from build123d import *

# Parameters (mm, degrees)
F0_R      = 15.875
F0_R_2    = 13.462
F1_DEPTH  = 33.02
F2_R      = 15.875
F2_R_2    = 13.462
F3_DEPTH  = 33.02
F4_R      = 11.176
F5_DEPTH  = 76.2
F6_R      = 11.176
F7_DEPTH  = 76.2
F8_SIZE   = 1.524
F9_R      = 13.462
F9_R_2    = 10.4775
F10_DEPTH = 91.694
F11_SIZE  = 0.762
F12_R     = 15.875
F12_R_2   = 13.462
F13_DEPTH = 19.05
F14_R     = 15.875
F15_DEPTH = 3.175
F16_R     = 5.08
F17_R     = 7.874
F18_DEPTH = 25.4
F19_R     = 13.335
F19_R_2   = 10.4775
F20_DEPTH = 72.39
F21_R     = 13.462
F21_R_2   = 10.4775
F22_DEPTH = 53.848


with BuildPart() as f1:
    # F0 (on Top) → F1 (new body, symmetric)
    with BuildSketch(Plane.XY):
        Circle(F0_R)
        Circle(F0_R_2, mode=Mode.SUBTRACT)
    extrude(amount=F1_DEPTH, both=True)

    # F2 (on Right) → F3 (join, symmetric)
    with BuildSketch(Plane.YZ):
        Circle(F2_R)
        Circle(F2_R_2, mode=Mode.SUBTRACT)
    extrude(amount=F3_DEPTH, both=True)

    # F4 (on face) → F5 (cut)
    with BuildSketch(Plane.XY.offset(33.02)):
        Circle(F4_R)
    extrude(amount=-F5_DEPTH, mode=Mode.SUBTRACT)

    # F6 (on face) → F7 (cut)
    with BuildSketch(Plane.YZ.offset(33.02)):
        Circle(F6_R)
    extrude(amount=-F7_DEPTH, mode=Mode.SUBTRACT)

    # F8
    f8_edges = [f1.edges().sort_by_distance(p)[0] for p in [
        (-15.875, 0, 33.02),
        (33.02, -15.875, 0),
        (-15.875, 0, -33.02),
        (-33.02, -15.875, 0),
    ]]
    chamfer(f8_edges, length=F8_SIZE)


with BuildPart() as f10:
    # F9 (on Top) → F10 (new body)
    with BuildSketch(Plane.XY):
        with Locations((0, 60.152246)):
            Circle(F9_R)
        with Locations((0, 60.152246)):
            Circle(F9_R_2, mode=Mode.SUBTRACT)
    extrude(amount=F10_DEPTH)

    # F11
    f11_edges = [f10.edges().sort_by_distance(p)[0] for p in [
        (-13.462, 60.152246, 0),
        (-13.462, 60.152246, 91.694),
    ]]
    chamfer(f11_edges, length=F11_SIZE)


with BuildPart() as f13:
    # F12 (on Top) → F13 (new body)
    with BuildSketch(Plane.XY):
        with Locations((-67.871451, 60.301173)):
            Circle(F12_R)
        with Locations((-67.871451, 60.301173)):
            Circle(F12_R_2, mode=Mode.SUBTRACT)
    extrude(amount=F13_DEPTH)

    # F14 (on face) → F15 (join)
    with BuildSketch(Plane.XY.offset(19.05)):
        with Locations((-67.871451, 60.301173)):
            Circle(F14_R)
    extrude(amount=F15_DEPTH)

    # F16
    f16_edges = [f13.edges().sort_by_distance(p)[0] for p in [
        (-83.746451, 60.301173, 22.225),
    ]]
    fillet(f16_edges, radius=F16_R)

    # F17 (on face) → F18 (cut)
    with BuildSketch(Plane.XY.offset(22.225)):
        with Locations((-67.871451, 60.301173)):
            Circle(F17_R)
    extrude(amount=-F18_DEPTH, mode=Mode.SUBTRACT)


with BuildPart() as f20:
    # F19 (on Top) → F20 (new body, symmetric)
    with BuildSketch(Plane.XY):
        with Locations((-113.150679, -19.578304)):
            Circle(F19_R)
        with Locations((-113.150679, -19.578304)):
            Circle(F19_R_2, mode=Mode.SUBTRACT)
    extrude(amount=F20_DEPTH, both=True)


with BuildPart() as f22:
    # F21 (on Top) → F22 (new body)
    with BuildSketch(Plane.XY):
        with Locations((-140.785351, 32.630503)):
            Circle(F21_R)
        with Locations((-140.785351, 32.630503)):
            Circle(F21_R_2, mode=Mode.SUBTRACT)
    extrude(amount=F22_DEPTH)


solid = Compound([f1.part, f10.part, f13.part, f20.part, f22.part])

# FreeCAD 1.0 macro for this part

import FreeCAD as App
import Part
import Sketcher

V = App.Vector
Q = App.Units.Quantity


def edges_at(feature, points):
    """Names of the edges that pass closest to the given points."""
    edges = feature.Shape.Edges
    near = lambda p: min(range(len(edges)), key=lambda i: edges[i].distToShape(Part.Vertex(*p))[0])
    return sorted({f"Edge{near(p) + 1}" for p in points})

doc = App.newDocument("Part")
body = doc.addObject("PartDesign::Body", "Body")

sketch1 = body.newObject("Sketcher::SketchObject", "Sketch")
sketch1.AttachmentSupport = (doc.getObject("XY_Plane"), [""])
sketch1.MapMode = "FlatFace"
sketch1.addGeometry(Part.Circle(V(0, 0, 0), V(0, 0, 1), 16), False)
sketch1.addGeometry(Part.Circle(V(0, 0, 0), V(0, 0, 1), 13), False)
sketch1.addConstraint(Sketcher.Constraint("Coincident", 0, 3, -1, 1))
sketch1.addConstraint(Sketcher.Constraint("Coincident", 1, 3, -1, 1))
sketch1.addConstraint(Sketcher.Constraint("Diameter", 0, Q("1.25 in")))
sketch1.addConstraint(Sketcher.Constraint("Diameter", 1, Q("1.06 in")))
pad1 = body.newObject("PartDesign::Pad", "Pad")
pad1.Profile = sketch1
pad1.Length = Q("2.6 in")
pad1.Midplane = True

sketch2 = body.newObject("Sketcher::SketchObject", "Sketch001")
sketch2.AttachmentSupport = (doc.getObject("YZ_Plane"), [""])
sketch2.MapMode = "FlatFace"
sketch2.addGeometry(Part.Circle(V(0, 0, 0), V(0, 0, 1), 16), False)
sketch2.addGeometry(Part.Circle(V(0, 0, 0), V(0, 0, 1), 13), False)
sketch2.addConstraint(Sketcher.Constraint("Coincident", 0, 3, -1, 1))
sketch2.addConstraint(Sketcher.Constraint("Coincident", 1, 3, -1, 1))
sketch2.addConstraint(Sketcher.Constraint("Diameter", 0, Q("1.25 in")))
sketch2.addConstraint(Sketcher.Constraint("Diameter", 1, Q("1.06 in")))
pad2 = body.newObject("PartDesign::Pad", "Pad001")
pad2.Profile = sketch2
pad2.Length = Q("2.6 in")
pad2.Midplane = True

sketch3 = body.newObject("Sketcher::SketchObject", "Sketch002")
sketch3.AttachmentSupport = (doc.getObject("XY_Plane"), [""])
sketch3.MapMode = "FlatFace"
sketch3.AttachmentOffset = App.Placement(V(0, 0, 1.3 * 25.4), App.Rotation())
sketch3.addGeometry(Part.Circle(V(0, 0, 0), V(0, 0, 1), 11), False)
sketch3.addConstraint(Sketcher.Constraint("Coincident", 0, 3, -1, 1))
sketch3.addConstraint(Sketcher.Constraint("Diameter", 0, Q("0.88 in")))
pocket1 = body.newObject("PartDesign::Pocket", "Pocket")
pocket1.Profile = sketch3
pocket1.Length = Q("3 in")

sketch4 = body.newObject("Sketcher::SketchObject", "Sketch003")
sketch4.AttachmentSupport = (doc.getObject("YZ_Plane"), [""])
sketch4.MapMode = "FlatFace"
sketch4.AttachmentOffset = App.Placement(V(0, 0, 1.3 * 25.4), App.Rotation())
sketch4.addGeometry(Part.Circle(V(0, 0, 0), V(0, 0, 1), 11), False)
sketch4.addConstraint(Sketcher.Constraint("Coincident", 0, 3, -1, 1))
sketch4.addConstraint(Sketcher.Constraint("Diameter", 0, Q("0.88 in")))
pocket2 = body.newObject("PartDesign::Pocket", "Pocket001")
pocket2.Profile = sketch4
pocket2.Length = Q("3 in")
doc.recompute()

chamfer = body.newObject("PartDesign::Chamfer", "Chamfer")
chamfer.Base = (pocket2, edges_at(pocket2, [
    (-15.875, 0, 33.02),
    (33.02, -15.875, 0),
    (-15.875, 0, -33.02),
    (-33.02, -15.875, 0),
]))
chamfer.Size = Q("0.06 in")
body2 = doc.addObject("PartDesign::Body", "Body001")

sketch5 = body2.newObject("Sketcher::SketchObject", "Sketch004")
sketch5.AttachmentSupport = (doc.getObject("XY_Plane001"), [""])
sketch5.MapMode = "FlatFace"
sketch5.addGeometry(Part.Circle(V(0, 60, 0), V(0, 0, 1), 13), False)
sketch5.addGeometry(Part.Circle(V(0, 60, 0), V(0, 0, 1), 10), False)
sketch5.addConstraint(Sketcher.Constraint("Coincident", 1, 3, 0, 3))
sketch5.addConstraint(Sketcher.Constraint("PointOnObject", 0, 3, -2))
sketch5.addConstraint(Sketcher.Constraint("Diameter", 0, Q("1.06 in")))
sketch5.addConstraint(Sketcher.Constraint("Diameter", 1, Q("0.825 in")))
sketch5.addConstraint(Sketcher.Constraint("DistanceY", -1, 1, 0, 3, 60.152246))
pad3 = body2.newObject("PartDesign::Pad", "Pad002")
pad3.Profile = sketch5
pad3.Length = Q("3.61 in")
doc.recompute()

chamfer2 = body2.newObject("PartDesign::Chamfer", "Chamfer001")
chamfer2.Base = (pad3, edges_at(pad3, [(-13.462, 60.152, 0), (-13.462, 60.152, 91.694)]))
chamfer2.Size = Q("0.03 in")
body3 = doc.addObject("PartDesign::Body", "Body002")

sketch6 = body3.newObject("Sketcher::SketchObject", "Sketch005")
sketch6.AttachmentSupport = (doc.getObject("XY_Plane002"), [""])
sketch6.MapMode = "FlatFace"
sketch6.addGeometry(Part.Circle(V(-68, 60, 0), V(0, 0, 1), 16), False)
sketch6.addGeometry(Part.Circle(V(-68, 60, 0), V(0, 0, 1), 13), False)
sketch6.addConstraint(Sketcher.Constraint("Coincident", 1, 3, 0, 3))
sketch6.addConstraint(Sketcher.Constraint("Diameter", 0, Q("1.25 in")))
sketch6.addConstraint(Sketcher.Constraint("Diameter", 1, Q("1.06 in")))
sketch6.addConstraint(Sketcher.Constraint("DistanceX", 0, 3, -1, 1, 67.871451))
sketch6.addConstraint(Sketcher.Constraint("DistanceY", -1, 1, 0, 3, 60.301173))
pad4 = body3.newObject("PartDesign::Pad", "Pad003")
pad4.Profile = sketch6
pad4.Length = Q("0.75 in")

sketch7 = body3.newObject("Sketcher::SketchObject", "Sketch006")
sketch7.AttachmentSupport = (doc.getObject("XY_Plane002"), [""])
sketch7.MapMode = "FlatFace"
sketch7.AttachmentOffset = App.Placement(V(0, 0, 0.75 * 25.4), App.Rotation())
sketch7.addGeometry(Part.Circle(V(-68, 60, 0), V(0, 0, 1), 16), False)
sketch7.addConstraint(Sketcher.Constraint("Diameter", 0, Q("1.25 in")))
sketch7.addConstraint(Sketcher.Constraint("DistanceX", 0, 3, -1, 1, 67.871451))
sketch7.addConstraint(Sketcher.Constraint("DistanceY", -1, 1, 0, 3, 60.301173))
pad5 = body3.newObject("PartDesign::Pad", "Pad004")
pad5.Profile = sketch7
pad5.Length = Q("0.125 in")
doc.recompute()

fillet = body3.newObject("PartDesign::Fillet", "Fillet")
fillet.Base = (pad5, edges_at(pad5, [(-83.746, 60.301, 22.225)]))
fillet.Radius = Q("0.2 in")

sketch8 = body3.newObject("Sketcher::SketchObject", "Sketch007")
sketch8.AttachmentSupport = (doc.getObject("XY_Plane002"), [""])
sketch8.MapMode = "FlatFace"
sketch8.AttachmentOffset = App.Placement(V(0, 0, 0.875 * 25.4), App.Rotation())
sketch8.addGeometry(Part.Circle(V(-68, 60, 0), V(0, 0, 1), 8), False)
sketch8.addConstraint(Sketcher.Constraint("Diameter", 0, Q("0.62 in")))
sketch8.addConstraint(Sketcher.Constraint("DistanceX", 0, 3, -1, 1, 67.871451))
sketch8.addConstraint(Sketcher.Constraint("DistanceY", -1, 1, 0, 3, 60.301173))
pocket3 = body3.newObject("PartDesign::Pocket", "Pocket002")
pocket3.Profile = sketch8
pocket3.Length = Q("1 in")
body4 = doc.addObject("PartDesign::Body", "Body003")

sketch9 = body4.newObject("Sketcher::SketchObject", "Sketch008")
sketch9.AttachmentSupport = (doc.getObject("XY_Plane003"), [""])
sketch9.MapMode = "FlatFace"
sketch9.addGeometry(Part.Circle(V(-113, -20, 0), V(0, 0, 1), 13), False)
sketch9.addGeometry(Part.Circle(V(-113, -20, 0), V(0, 0, 1), 10), False)
sketch9.addConstraint(Sketcher.Constraint("Coincident", 1, 3, 0, 3))
sketch9.addConstraint(Sketcher.Constraint("Diameter", 0, Q("1.05 in")))
sketch9.addConstraint(Sketcher.Constraint("Diameter", 1, Q("0.825 in")))
sketch9.addConstraint(Sketcher.Constraint("DistanceX", 0, 3, -1, 1, 113.150679))
sketch9.addConstraint(Sketcher.Constraint("DistanceY", 0, 3, -1, 1, 19.578304))
pad6 = body4.newObject("PartDesign::Pad", "Pad005")
pad6.Profile = sketch9
pad6.Length = Q("5.7 in")
pad6.Midplane = True
body5 = doc.addObject("PartDesign::Body", "Body004")

sketch10 = body5.newObject("Sketcher::SketchObject", "Sketch009")
sketch10.AttachmentSupport = (doc.getObject("XY_Plane004"), [""])
sketch10.MapMode = "FlatFace"
sketch10.addGeometry(Part.Circle(V(-141, 33, 0), V(0, 0, 1), 13), False)
sketch10.addGeometry(Part.Circle(V(-141, 33, 0), V(0, 0, 1), 10), False)
sketch10.addConstraint(Sketcher.Constraint("Coincident", 1, 3, 0, 3))
sketch10.addConstraint(Sketcher.Constraint("Diameter", 0, Q("1.06 in")))
sketch10.addConstraint(Sketcher.Constraint("Diameter", 1, Q("0.825 in")))
sketch10.addConstraint(Sketcher.Constraint("DistanceX", 0, 3, -1, 1, 140.785351))
sketch10.addConstraint(Sketcher.Constraint("DistanceY", -1, 1, 0, 3, 32.630503))
pad7 = body5.newObject("PartDesign::Pad", "Pad006")
pad7.Profile = sketch10
pad7.Length = Q("2.12 in")

doc.recompute()
